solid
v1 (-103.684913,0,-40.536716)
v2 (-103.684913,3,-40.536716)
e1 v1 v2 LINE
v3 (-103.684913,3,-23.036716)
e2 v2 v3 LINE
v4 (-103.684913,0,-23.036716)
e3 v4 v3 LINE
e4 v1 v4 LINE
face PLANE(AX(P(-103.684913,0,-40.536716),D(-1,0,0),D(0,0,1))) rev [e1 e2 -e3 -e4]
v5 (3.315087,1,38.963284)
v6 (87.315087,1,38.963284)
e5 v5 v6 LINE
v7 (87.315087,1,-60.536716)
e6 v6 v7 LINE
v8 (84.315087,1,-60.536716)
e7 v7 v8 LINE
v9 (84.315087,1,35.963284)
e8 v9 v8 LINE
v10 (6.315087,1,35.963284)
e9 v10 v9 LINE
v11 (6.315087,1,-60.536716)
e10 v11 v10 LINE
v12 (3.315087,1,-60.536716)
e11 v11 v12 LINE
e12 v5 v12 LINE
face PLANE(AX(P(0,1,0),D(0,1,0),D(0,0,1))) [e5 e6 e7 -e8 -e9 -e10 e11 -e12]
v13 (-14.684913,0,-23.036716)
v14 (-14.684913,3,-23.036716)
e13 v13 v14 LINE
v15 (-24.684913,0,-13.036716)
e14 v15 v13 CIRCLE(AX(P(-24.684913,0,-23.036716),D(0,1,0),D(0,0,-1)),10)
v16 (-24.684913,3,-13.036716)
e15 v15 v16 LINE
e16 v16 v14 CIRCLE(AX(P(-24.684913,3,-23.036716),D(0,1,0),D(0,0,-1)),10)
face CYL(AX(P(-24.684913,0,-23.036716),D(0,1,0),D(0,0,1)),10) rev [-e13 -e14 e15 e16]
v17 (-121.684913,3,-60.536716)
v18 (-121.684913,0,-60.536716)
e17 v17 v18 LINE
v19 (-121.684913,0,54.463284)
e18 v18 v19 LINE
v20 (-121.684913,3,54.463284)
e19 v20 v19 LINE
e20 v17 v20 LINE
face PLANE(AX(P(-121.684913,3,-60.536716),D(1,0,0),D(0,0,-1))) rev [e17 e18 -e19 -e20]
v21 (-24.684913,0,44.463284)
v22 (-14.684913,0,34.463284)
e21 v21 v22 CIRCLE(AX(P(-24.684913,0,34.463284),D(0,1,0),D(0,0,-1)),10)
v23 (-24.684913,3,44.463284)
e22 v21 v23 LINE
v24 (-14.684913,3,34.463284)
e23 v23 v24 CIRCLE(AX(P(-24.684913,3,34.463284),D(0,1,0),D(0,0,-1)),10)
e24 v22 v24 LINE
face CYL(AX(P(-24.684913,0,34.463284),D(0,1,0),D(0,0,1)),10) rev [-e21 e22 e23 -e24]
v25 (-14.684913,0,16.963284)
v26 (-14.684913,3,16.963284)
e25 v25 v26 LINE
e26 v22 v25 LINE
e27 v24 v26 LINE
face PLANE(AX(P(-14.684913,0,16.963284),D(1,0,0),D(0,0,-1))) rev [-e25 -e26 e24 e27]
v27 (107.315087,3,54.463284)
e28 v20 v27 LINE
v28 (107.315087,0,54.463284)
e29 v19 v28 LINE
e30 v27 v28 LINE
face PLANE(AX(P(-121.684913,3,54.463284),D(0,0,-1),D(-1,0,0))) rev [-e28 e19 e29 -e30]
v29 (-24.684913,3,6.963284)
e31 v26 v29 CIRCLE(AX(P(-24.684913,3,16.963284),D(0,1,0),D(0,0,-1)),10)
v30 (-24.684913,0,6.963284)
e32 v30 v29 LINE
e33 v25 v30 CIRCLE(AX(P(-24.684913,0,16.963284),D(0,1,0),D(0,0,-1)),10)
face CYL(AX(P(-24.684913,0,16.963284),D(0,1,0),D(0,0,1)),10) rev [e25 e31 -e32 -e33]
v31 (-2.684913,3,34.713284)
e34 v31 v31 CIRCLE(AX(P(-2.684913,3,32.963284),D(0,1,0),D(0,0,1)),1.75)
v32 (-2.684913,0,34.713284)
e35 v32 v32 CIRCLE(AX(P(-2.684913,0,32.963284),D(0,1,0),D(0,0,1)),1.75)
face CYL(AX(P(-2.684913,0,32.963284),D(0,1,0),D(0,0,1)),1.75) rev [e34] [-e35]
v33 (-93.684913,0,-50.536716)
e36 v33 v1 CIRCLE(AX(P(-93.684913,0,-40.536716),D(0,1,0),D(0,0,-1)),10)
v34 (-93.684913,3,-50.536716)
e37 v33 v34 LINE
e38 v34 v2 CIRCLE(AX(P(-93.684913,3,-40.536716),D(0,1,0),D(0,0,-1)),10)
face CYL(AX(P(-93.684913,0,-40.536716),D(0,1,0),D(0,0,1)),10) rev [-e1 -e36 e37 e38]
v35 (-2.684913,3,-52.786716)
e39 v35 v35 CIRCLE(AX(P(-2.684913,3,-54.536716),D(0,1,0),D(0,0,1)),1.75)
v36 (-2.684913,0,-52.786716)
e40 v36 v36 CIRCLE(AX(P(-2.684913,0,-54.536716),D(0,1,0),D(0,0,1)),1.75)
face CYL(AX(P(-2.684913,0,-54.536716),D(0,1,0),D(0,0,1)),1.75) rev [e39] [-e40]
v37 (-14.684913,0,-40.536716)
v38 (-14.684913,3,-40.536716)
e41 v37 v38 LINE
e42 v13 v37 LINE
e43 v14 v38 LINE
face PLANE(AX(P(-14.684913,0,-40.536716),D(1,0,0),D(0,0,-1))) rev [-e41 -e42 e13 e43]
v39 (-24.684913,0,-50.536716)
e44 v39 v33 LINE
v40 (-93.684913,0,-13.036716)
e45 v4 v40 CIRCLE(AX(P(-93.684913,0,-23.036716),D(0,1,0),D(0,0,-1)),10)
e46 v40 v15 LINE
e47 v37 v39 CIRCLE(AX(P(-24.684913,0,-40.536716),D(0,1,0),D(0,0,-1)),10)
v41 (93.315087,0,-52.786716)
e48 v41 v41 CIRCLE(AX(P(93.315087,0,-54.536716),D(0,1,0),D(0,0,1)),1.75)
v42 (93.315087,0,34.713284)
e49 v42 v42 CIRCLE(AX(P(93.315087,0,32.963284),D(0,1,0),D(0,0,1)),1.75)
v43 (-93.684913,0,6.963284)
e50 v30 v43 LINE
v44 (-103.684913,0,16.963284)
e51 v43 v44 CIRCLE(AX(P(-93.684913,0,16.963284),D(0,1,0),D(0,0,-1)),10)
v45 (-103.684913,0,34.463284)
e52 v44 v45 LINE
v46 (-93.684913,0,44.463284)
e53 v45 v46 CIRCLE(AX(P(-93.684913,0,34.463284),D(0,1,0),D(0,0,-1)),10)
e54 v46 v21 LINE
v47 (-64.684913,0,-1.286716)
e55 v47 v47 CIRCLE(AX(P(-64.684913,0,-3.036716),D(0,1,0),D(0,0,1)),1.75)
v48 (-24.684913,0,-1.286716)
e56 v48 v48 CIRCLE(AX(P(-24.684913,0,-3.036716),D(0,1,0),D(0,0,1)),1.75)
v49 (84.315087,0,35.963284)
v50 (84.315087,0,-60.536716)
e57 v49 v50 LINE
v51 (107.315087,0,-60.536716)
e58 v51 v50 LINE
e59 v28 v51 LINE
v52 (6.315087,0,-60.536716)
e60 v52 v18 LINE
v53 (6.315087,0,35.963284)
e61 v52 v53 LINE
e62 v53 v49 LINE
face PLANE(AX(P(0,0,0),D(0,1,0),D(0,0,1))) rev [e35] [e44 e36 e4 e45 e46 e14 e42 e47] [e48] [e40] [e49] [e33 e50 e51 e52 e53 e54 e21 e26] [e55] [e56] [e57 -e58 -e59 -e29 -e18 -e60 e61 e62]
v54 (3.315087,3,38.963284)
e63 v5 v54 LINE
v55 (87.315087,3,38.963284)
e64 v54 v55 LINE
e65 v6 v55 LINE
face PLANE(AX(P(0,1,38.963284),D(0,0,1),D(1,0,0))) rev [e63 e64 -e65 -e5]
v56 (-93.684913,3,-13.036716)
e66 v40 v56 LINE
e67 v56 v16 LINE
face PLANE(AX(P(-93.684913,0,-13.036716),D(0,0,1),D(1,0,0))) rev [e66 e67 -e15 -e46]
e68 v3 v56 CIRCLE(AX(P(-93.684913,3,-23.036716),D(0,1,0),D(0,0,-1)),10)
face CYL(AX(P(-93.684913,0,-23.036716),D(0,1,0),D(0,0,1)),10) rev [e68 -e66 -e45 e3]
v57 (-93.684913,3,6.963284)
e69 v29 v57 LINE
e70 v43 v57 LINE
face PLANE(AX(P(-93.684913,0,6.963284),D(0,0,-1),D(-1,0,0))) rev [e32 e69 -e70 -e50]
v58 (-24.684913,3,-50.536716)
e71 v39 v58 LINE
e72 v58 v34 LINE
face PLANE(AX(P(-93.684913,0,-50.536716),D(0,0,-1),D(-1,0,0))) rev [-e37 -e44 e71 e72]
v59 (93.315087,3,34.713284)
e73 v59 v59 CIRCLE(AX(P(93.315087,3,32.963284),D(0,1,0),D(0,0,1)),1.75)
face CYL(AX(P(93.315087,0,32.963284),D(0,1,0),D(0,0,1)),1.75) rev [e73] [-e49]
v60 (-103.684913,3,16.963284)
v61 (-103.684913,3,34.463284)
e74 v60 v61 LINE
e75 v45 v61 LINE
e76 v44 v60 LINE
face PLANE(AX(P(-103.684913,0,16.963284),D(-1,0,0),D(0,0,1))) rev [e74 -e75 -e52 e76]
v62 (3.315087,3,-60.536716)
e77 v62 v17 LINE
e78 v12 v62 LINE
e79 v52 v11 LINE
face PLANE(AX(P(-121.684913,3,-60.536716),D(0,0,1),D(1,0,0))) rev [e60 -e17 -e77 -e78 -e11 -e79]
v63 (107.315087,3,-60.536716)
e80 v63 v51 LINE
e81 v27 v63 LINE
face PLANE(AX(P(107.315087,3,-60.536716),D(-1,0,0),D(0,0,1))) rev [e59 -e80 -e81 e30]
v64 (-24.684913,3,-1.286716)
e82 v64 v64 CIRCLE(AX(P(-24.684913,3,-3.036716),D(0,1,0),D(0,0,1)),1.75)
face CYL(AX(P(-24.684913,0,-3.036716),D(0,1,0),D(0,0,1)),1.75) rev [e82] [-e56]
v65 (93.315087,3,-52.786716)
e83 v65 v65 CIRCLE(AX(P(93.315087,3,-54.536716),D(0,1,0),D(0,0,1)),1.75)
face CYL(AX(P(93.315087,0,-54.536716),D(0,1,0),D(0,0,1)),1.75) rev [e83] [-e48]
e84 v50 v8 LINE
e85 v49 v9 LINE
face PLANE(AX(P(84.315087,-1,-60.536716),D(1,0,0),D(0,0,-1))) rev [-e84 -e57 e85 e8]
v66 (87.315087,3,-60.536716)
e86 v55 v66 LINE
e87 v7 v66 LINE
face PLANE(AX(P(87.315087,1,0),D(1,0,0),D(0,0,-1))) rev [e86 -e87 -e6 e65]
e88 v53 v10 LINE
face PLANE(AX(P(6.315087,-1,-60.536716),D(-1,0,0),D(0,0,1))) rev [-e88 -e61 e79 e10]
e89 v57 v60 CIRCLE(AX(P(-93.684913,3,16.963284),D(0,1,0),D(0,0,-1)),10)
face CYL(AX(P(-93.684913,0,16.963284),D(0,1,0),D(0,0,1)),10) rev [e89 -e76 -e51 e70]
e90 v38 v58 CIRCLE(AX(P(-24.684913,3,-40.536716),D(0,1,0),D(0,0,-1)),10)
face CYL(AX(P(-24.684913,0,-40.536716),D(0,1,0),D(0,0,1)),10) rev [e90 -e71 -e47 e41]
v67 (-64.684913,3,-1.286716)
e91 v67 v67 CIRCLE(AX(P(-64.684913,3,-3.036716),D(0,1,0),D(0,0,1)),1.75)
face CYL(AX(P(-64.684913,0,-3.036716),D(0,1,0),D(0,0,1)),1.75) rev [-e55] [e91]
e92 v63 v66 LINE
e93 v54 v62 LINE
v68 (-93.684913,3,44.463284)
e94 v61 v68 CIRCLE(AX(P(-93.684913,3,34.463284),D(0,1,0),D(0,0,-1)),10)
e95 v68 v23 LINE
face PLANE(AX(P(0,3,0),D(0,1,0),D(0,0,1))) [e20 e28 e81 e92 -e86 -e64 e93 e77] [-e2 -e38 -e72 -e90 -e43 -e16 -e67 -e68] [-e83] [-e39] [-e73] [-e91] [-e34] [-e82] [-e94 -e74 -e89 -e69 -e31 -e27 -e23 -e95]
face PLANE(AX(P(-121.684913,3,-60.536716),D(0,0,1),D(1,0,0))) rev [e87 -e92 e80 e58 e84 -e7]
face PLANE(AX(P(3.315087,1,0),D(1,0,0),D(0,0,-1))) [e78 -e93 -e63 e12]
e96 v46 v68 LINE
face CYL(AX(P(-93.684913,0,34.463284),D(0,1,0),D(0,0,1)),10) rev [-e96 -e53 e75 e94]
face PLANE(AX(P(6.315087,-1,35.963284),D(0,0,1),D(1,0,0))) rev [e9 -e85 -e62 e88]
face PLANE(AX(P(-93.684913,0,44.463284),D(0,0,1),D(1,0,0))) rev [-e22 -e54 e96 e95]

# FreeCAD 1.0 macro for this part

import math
import FreeCAD as App
import Part
import Sketcher

doc = App.newDocument("Part")
body = doc.addObject("PartDesign::Body", "Body")

# Sketch on XZ plane
sketch1 = body.newObject("Sketcher::SketchObject", "Sketch")
sketch1.AttachmentSupport = (doc.getObject("XZ_Plane"), [""])
sketch1.MapMode = "FlatFace"
sketch1.addGeometry([
    Part.LineSegment(App.Vector(-121.684913, -60.536716, 0), App.Vector(-121.684913, 54.463284, 0)),
    Part.LineSegment(App.Vector(-121.684913, 54.463284, 0), App.Vector(107.315087, 54.463284, 0)),
    Part.LineSegment(App.Vector(107.315087, 54.463284, 0), App.Vector(107.315087, -60.536716, 0)),
    Part.LineSegment(App.Vector(107.315087, -60.536716, 0), App.Vector(-121.684913, -60.536716, 0)),
], False)
sketch1.addConstraint([
    Sketcher.Constraint("Coincident", 0, 2, 1, 1),
    Sketcher.Constraint("Coincident", 1, 2, 2, 1),
    Sketcher.Constraint("Coincident", 2, 2, 3, 1),
    Sketcher.Constraint("Coincident", 3, 2, 0, 1),
    Sketcher.Constraint("Vertical", 0),
    Sketcher.Constraint("Horizontal", 1),
    Sketcher.Constraint("Vertical", 2),
    Sketcher.Constraint("Horizontal", 3),
    Sketcher.Constraint("DistanceX", 1, 1, 1, 2, 229.0),
    Sketcher.Constraint("DistanceY", 0, 1, 0, 2, 115.0),
    Sketcher.Constraint("DistanceX", 0, 2, -1, 1, 121.684913),
    Sketcher.Constraint("DistanceY", -1, 1, 0, 2, 54.463284),
])
pad1 = body.newObject("PartDesign::Pad", "Pad")
pad1.Profile = sketch1
pad1.Length = 3
pad1.Reversed = True

# Sketch on XZ plane
sketch2 = body.newObject("Sketcher::SketchObject", "Sketch001")
sketch2.AttachmentSupport = (doc.getObject("XZ_Plane"), [""])
sketch2.MapMode = "FlatFace"
sketch2.AttachmentOffset = App.Placement(App.Vector(0, 0, -3), App.Rotation())
sketch2.addGeometry([
    Part.LineSegment(App.Vector(3.315087, -60.536716, 0), App.Vector(3.315087, 38.963284, 0)),
    Part.LineSegment(App.Vector(3.315087, 38.963284, 0), App.Vector(87.315087, 38.963284, 0)),
    Part.LineSegment(App.Vector(87.315087, 38.963284, 0), App.Vector(87.315087, -60.536716, 0)),
    Part.LineSegment(App.Vector(87.315087, -60.536716, 0), App.Vector(3.315087, -60.536716, 0)),
], False)
sketch2.addConstraint([
    Sketcher.Constraint("Coincident", 0, 2, 1, 1),
    Sketcher.Constraint("Coincident", 1, 2, 2, 1),
    Sketcher.Constraint("Coincident", 2, 2, 3, 1),
    Sketcher.Constraint("Coincident", 3, 2, 0, 1),
    Sketcher.Constraint("Vertical", 0),
    Sketcher.Constraint("Horizontal", 1),
    Sketcher.Constraint("Vertical", 2),
    Sketcher.Constraint("Horizontal", 3),
    Sketcher.Constraint("DistanceX", 1, 1, 1, 2, 84.0),
    Sketcher.Constraint("DistanceY", 0, 1, 0, 2, 99.5),
    Sketcher.Constraint("DistanceX", -1, 1, 0, 2, 3.315087),
    Sketcher.Constraint("DistanceY", -1, 1, 0, 2, 38.963284),
])
pocket1 = body.newObject("PartDesign::Pocket", "Pocket")
pocket1.Profile = sketch2
pocket1.Length = 2
pocket1.Reversed = True

# Sketch on XZ plane
sketch3 = body.newObject("Sketcher::SketchObject", "Sketch002")
sketch3.AttachmentSupport = (doc.getObject("XZ_Plane"), [""])
sketch3.MapMode = "FlatFace"
sketch3.AttachmentOffset = App.Placement(App.Vector(0, 0, -1), App.Rotation())
sketch3.addGeometry([
    Part.LineSegment(App.Vector(6.315087, -60.536716, 0), App.Vector(6.315087, 35.963284, 0)),
    Part.LineSegment(App.Vector(6.315087, 35.963284, 0), App.Vector(84.315087, 35.963284, 0)),
    Part.LineSegment(App.Vector(84.315087, 35.963284, 0), App.Vector(84.315087, -60.536716, 0)),
    Part.LineSegment(App.Vector(84.315087, -60.536716, 0), App.Vector(6.315087, -60.536716, 0)),
], False)
sketch3.addConstraint([
    Sketcher.Constraint("Coincident", 0, 2, 1, 1),
    Sketcher.Constraint("Coincident", 1, 2, 2, 1),
    Sketcher.Constraint("Coincident", 2, 2, 3, 1),
    Sketcher.Constraint("Coincident", 3, 2, 0, 1),
    Sketcher.Constraint("Vertical", 0),
    Sketcher.Constraint("Horizontal", 1),
    Sketcher.Constraint("Vertical", 2),
    Sketcher.Constraint("Horizontal", 3),
    Sketcher.Constraint("DistanceX", 1, 1, 1, 2, 78.0),
    Sketcher.Constraint("DistanceY", 0, 1, 0, 2, 96.5),
    Sketcher.Constraint("DistanceX", -1, 1, 0, 2, 6.315087),
    Sketcher.Constraint("DistanceY", -1, 1, 0, 2, 35.963284),
])
pocket2 = body.newObject("PartDesign::Pocket", "Pocket001")
pocket2.Profile = sketch3
pocket2.Length = 2
pocket2.Reversed = True

# Sketch on XZ plane
sketch4 = body.newObject("Sketcher::SketchObject", "Sketch003")
sketch4.AttachmentSupport = (doc.getObject("XZ_Plane"), [""])
sketch4.MapMode = "FlatFace"
sketch4.AttachmentOffset = App.Placement(App.Vector(0, 0, -3), App.Rotation())
sketch4.addGeometry([
    Part.Circle(App.Vector(-64.684913, -3.036716, 0), App.Vector(0, 0, 1), 1.75),  # 0
    Part.Circle(App.Vector(-24.684913, -3.036716, 0), App.Vector(0, 0, 1), 1.75),  # 1
    Part.Circle(App.Vector(-2.684913, -54.536716, 0), App.Vector(0, 0, 1), 1.75),  # 2
    Part.Circle(App.Vector(93.315087, -54.536716, 0), App.Vector(0, 0, 1), 1.75),  # 3
    Part.Circle(App.Vector(93.315087, 32.963284, 0), App.Vector(0, 0, 1), 1.75),  # 4
    Part.Circle(App.Vector(-2.684913, 32.963284, 0), App.Vector(0, 0, 1), 1.75),  # 5
    Part.LineSegment(App.Vector(-24.684913, -50.536716, 0), App.Vector(-93.684913, -50.536716, 0)),  # 6
    Part.ArcOfCircle(Part.Circle(App.Vector(-93.684913, -40.536716, 0), App.Vector(0, 0, 1), 10), math.radians(-180), math.radians(-90)),  # 7
    Part.LineSegment(App.Vector(-103.684913, -40.536716, 0), App.Vector(-103.684913, -23.036716, 0)),  # 8
    Part.ArcOfCircle(Part.Circle(App.Vector(-93.684913, -23.036716, 0), App.Vector(0, 0, 1), 10), math.radians(90), math.radians(180)),  # 9
    Part.LineSegment(App.Vector(-93.684913, -13.036716, 0), App.Vector(-24.684913, -13.036716, 0)),  # 10
    Part.ArcOfCircle(Part.Circle(App.Vector(-24.684913, -23.036716, 0), App.Vector(0, 0, 1), 10), math.radians(0), math.radians(90)),  # 11
    Part.LineSegment(App.Vector(-14.684913, -23.036716, 0), App.Vector(-14.684913, -40.536716, 0)),  # 12
    Part.ArcOfCircle(Part.Circle(App.Vector(-24.684913, -40.536716, 0), App.Vector(0, 0, 1), 10), math.radians(-90), math.radians(0)),  # 13
    Part.LineSegment(App.Vector(-24.684913, 6.963284, 0), App.Vector(-93.684913, 6.963284, 0)),  # 14
    Part.ArcOfCircle(Part.Circle(App.Vector(-93.684913, 16.963284, 0), App.Vector(0, 0, 1), 10), math.radians(-180), math.radians(-90)),  # 15
    Part.LineSegment(App.Vector(-103.684913, 16.963284, 0), App.Vector(-103.684913, 34.463284, 0)),  # 16
    Part.ArcOfCircle(Part.Circle(App.Vector(-93.684913, 34.463284, 0), App.Vector(0, 0, 1), 10), math.radians(90), math.radians(180)),  # 17
    Part.LineSegment(App.Vector(-93.684913, 44.463284, 0), App.Vector(-24.684913, 44.463284, 0)),  # 18
    Part.ArcOfCircle(Part.Circle(App.Vector(-24.684913, 34.463284, 0), App.Vector(0, 0, 1), 10), math.radians(0), math.radians(90)),  # 19
    Part.LineSegment(App.Vector(-14.684913, 34.463284, 0), App.Vector(-14.684913, 16.963284, 0)),  # 20
    Part.ArcOfCircle(Part.Circle(App.Vector(-24.684913, 16.963284, 0), App.Vector(0, 0, 1), 10), math.radians(-90), math.radians(0)),  # 21
], False)
sketch4.addConstraint([
    Sketcher.Constraint("Tangent", 6, 2, 7, 2),
    Sketcher.Constraint("Tangent", 7, 1, 8, 1),
    Sketcher.Constraint("Tangent", 8, 2, 9, 2),
    Sketcher.Constraint("Tangent", 9, 1, 10, 1),
    Sketcher.Constraint("Tangent", 10, 2, 11, 2),
    Sketcher.Constraint("Tangent", 11, 1, 12, 1),
    Sketcher.Constraint("Tangent", 12, 2, 13, 2),
    Sketcher.Constraint("Tangent", 13, 1, 6, 1),
    Sketcher.Constraint("Tangent", 14, 2, 15, 2),
    Sketcher.Constraint("Tangent", 15, 1, 16, 1),
    Sketcher.Constraint("Tangent", 16, 2, 17, 2),
    Sketcher.Constraint("Tangent", 17, 1, 18, 1),
    Sketcher.Constraint("Tangent", 18, 2, 19, 2),
    Sketcher.Constraint("Tangent", 19, 1, 20, 1),
    Sketcher.Constraint("Tangent", 20, 2, 21, 2),
    Sketcher.Constraint("Tangent", 21, 1, 14, 1),
    Sketcher.Constraint("Horizontal", 6),
    Sketcher.Constraint("Vertical", 8),
    Sketcher.Constraint("Horizontal", 10),
    Sketcher.Constraint("Vertical", 12),
    Sketcher.Constraint("Horizontal", 14),
    Sketcher.Constraint("Vertical", 16),
    Sketcher.Constraint("Horizontal", 18),
    Sketcher.Constraint("Vertical", 20),
    Sketcher.Constraint("Equal", 0, 1),
    Sketcher.Constraint("Equal", 1, 2),
    Sketcher.Constraint("Equal", 2, 3),
    Sketcher.Constraint("Equal", 3, 4),
    Sketcher.Constraint("Equal", 4, 5),
    Sketcher.Constraint("Equal", 7, 9),
    Sketcher.Constraint("Equal", 9, 11),
    Sketcher.Constraint("Equal", 11, 13),
    Sketcher.Constraint("Equal", 13, 15),
    Sketcher.Constraint("Equal", 15, 17),
    Sketcher.Constraint("Equal", 17, 19),
    Sketcher.Constraint("Equal", 19, 21),
    Sketcher.Constraint("Horizontal", 0, 3, 1, 3),
    Sketcher.Constraint("Horizontal", 2, 3, 3, 3),
    Sketcher.Constraint("Horizontal", 4, 3, 5, 3),
    Sketcher.Constraint("Vertical", 3, 3, 4, 3),
    Sketcher.Constraint("Vertical", 2, 3, 5, 3),
    Sketcher.Constraint("Vertical", 1, 3, 11, 3),
    Sketcher.Constraint("Vertical", 9, 3, 15, 3),
    Sketcher.Constraint("Vertical", 13, 3, 19, 3),
    Sketcher.Constraint("Equal", 12, 16),
    Sketcher.Constraint("Radius", 7, 10.0),
    Sketcher.Constraint("Diameter", 0, 3.5),
    Sketcher.Constraint("DistanceX", 6, 2, 6, 1, 69.0),
    Sketcher.Constraint("DistanceY", 8, 1, 8, 2, 17.5),
    Sketcher.Constraint("DistanceX", 0, 3, 1, 3, 40.0),
    Sketcher.Constraint("DistanceX", 1, 3, 2, 3, 22.0),
    Sketcher.Constraint("DistanceX", 2, 3, 3, 3, 96.0),
    Sketcher.Constraint("DistanceY", 1, 3, 4, 3, 36.0),
    Sketcher.Constraint("DistanceY", 2, 3, 7, 3, 14.0),
    Sketcher.Constraint("DistanceY", 9, 3, 0, 3, 20.0),
    Sketcher.Constraint("DistanceY", 0, 3, 15, 3, 20.0),
    Sketcher.Constraint("DistanceX", 0, 3, -1, 1, 64.684913),
    Sketcher.Constraint("DistanceY", 0, 3, -1, 1, 3.036716),
])
pocket3 = body.newObject("PartDesign::Pocket", "Pocket002")
pocket3.Profile = sketch4
pocket3.Length = 3
pocket3.Reversed = True

doc.recompute()
